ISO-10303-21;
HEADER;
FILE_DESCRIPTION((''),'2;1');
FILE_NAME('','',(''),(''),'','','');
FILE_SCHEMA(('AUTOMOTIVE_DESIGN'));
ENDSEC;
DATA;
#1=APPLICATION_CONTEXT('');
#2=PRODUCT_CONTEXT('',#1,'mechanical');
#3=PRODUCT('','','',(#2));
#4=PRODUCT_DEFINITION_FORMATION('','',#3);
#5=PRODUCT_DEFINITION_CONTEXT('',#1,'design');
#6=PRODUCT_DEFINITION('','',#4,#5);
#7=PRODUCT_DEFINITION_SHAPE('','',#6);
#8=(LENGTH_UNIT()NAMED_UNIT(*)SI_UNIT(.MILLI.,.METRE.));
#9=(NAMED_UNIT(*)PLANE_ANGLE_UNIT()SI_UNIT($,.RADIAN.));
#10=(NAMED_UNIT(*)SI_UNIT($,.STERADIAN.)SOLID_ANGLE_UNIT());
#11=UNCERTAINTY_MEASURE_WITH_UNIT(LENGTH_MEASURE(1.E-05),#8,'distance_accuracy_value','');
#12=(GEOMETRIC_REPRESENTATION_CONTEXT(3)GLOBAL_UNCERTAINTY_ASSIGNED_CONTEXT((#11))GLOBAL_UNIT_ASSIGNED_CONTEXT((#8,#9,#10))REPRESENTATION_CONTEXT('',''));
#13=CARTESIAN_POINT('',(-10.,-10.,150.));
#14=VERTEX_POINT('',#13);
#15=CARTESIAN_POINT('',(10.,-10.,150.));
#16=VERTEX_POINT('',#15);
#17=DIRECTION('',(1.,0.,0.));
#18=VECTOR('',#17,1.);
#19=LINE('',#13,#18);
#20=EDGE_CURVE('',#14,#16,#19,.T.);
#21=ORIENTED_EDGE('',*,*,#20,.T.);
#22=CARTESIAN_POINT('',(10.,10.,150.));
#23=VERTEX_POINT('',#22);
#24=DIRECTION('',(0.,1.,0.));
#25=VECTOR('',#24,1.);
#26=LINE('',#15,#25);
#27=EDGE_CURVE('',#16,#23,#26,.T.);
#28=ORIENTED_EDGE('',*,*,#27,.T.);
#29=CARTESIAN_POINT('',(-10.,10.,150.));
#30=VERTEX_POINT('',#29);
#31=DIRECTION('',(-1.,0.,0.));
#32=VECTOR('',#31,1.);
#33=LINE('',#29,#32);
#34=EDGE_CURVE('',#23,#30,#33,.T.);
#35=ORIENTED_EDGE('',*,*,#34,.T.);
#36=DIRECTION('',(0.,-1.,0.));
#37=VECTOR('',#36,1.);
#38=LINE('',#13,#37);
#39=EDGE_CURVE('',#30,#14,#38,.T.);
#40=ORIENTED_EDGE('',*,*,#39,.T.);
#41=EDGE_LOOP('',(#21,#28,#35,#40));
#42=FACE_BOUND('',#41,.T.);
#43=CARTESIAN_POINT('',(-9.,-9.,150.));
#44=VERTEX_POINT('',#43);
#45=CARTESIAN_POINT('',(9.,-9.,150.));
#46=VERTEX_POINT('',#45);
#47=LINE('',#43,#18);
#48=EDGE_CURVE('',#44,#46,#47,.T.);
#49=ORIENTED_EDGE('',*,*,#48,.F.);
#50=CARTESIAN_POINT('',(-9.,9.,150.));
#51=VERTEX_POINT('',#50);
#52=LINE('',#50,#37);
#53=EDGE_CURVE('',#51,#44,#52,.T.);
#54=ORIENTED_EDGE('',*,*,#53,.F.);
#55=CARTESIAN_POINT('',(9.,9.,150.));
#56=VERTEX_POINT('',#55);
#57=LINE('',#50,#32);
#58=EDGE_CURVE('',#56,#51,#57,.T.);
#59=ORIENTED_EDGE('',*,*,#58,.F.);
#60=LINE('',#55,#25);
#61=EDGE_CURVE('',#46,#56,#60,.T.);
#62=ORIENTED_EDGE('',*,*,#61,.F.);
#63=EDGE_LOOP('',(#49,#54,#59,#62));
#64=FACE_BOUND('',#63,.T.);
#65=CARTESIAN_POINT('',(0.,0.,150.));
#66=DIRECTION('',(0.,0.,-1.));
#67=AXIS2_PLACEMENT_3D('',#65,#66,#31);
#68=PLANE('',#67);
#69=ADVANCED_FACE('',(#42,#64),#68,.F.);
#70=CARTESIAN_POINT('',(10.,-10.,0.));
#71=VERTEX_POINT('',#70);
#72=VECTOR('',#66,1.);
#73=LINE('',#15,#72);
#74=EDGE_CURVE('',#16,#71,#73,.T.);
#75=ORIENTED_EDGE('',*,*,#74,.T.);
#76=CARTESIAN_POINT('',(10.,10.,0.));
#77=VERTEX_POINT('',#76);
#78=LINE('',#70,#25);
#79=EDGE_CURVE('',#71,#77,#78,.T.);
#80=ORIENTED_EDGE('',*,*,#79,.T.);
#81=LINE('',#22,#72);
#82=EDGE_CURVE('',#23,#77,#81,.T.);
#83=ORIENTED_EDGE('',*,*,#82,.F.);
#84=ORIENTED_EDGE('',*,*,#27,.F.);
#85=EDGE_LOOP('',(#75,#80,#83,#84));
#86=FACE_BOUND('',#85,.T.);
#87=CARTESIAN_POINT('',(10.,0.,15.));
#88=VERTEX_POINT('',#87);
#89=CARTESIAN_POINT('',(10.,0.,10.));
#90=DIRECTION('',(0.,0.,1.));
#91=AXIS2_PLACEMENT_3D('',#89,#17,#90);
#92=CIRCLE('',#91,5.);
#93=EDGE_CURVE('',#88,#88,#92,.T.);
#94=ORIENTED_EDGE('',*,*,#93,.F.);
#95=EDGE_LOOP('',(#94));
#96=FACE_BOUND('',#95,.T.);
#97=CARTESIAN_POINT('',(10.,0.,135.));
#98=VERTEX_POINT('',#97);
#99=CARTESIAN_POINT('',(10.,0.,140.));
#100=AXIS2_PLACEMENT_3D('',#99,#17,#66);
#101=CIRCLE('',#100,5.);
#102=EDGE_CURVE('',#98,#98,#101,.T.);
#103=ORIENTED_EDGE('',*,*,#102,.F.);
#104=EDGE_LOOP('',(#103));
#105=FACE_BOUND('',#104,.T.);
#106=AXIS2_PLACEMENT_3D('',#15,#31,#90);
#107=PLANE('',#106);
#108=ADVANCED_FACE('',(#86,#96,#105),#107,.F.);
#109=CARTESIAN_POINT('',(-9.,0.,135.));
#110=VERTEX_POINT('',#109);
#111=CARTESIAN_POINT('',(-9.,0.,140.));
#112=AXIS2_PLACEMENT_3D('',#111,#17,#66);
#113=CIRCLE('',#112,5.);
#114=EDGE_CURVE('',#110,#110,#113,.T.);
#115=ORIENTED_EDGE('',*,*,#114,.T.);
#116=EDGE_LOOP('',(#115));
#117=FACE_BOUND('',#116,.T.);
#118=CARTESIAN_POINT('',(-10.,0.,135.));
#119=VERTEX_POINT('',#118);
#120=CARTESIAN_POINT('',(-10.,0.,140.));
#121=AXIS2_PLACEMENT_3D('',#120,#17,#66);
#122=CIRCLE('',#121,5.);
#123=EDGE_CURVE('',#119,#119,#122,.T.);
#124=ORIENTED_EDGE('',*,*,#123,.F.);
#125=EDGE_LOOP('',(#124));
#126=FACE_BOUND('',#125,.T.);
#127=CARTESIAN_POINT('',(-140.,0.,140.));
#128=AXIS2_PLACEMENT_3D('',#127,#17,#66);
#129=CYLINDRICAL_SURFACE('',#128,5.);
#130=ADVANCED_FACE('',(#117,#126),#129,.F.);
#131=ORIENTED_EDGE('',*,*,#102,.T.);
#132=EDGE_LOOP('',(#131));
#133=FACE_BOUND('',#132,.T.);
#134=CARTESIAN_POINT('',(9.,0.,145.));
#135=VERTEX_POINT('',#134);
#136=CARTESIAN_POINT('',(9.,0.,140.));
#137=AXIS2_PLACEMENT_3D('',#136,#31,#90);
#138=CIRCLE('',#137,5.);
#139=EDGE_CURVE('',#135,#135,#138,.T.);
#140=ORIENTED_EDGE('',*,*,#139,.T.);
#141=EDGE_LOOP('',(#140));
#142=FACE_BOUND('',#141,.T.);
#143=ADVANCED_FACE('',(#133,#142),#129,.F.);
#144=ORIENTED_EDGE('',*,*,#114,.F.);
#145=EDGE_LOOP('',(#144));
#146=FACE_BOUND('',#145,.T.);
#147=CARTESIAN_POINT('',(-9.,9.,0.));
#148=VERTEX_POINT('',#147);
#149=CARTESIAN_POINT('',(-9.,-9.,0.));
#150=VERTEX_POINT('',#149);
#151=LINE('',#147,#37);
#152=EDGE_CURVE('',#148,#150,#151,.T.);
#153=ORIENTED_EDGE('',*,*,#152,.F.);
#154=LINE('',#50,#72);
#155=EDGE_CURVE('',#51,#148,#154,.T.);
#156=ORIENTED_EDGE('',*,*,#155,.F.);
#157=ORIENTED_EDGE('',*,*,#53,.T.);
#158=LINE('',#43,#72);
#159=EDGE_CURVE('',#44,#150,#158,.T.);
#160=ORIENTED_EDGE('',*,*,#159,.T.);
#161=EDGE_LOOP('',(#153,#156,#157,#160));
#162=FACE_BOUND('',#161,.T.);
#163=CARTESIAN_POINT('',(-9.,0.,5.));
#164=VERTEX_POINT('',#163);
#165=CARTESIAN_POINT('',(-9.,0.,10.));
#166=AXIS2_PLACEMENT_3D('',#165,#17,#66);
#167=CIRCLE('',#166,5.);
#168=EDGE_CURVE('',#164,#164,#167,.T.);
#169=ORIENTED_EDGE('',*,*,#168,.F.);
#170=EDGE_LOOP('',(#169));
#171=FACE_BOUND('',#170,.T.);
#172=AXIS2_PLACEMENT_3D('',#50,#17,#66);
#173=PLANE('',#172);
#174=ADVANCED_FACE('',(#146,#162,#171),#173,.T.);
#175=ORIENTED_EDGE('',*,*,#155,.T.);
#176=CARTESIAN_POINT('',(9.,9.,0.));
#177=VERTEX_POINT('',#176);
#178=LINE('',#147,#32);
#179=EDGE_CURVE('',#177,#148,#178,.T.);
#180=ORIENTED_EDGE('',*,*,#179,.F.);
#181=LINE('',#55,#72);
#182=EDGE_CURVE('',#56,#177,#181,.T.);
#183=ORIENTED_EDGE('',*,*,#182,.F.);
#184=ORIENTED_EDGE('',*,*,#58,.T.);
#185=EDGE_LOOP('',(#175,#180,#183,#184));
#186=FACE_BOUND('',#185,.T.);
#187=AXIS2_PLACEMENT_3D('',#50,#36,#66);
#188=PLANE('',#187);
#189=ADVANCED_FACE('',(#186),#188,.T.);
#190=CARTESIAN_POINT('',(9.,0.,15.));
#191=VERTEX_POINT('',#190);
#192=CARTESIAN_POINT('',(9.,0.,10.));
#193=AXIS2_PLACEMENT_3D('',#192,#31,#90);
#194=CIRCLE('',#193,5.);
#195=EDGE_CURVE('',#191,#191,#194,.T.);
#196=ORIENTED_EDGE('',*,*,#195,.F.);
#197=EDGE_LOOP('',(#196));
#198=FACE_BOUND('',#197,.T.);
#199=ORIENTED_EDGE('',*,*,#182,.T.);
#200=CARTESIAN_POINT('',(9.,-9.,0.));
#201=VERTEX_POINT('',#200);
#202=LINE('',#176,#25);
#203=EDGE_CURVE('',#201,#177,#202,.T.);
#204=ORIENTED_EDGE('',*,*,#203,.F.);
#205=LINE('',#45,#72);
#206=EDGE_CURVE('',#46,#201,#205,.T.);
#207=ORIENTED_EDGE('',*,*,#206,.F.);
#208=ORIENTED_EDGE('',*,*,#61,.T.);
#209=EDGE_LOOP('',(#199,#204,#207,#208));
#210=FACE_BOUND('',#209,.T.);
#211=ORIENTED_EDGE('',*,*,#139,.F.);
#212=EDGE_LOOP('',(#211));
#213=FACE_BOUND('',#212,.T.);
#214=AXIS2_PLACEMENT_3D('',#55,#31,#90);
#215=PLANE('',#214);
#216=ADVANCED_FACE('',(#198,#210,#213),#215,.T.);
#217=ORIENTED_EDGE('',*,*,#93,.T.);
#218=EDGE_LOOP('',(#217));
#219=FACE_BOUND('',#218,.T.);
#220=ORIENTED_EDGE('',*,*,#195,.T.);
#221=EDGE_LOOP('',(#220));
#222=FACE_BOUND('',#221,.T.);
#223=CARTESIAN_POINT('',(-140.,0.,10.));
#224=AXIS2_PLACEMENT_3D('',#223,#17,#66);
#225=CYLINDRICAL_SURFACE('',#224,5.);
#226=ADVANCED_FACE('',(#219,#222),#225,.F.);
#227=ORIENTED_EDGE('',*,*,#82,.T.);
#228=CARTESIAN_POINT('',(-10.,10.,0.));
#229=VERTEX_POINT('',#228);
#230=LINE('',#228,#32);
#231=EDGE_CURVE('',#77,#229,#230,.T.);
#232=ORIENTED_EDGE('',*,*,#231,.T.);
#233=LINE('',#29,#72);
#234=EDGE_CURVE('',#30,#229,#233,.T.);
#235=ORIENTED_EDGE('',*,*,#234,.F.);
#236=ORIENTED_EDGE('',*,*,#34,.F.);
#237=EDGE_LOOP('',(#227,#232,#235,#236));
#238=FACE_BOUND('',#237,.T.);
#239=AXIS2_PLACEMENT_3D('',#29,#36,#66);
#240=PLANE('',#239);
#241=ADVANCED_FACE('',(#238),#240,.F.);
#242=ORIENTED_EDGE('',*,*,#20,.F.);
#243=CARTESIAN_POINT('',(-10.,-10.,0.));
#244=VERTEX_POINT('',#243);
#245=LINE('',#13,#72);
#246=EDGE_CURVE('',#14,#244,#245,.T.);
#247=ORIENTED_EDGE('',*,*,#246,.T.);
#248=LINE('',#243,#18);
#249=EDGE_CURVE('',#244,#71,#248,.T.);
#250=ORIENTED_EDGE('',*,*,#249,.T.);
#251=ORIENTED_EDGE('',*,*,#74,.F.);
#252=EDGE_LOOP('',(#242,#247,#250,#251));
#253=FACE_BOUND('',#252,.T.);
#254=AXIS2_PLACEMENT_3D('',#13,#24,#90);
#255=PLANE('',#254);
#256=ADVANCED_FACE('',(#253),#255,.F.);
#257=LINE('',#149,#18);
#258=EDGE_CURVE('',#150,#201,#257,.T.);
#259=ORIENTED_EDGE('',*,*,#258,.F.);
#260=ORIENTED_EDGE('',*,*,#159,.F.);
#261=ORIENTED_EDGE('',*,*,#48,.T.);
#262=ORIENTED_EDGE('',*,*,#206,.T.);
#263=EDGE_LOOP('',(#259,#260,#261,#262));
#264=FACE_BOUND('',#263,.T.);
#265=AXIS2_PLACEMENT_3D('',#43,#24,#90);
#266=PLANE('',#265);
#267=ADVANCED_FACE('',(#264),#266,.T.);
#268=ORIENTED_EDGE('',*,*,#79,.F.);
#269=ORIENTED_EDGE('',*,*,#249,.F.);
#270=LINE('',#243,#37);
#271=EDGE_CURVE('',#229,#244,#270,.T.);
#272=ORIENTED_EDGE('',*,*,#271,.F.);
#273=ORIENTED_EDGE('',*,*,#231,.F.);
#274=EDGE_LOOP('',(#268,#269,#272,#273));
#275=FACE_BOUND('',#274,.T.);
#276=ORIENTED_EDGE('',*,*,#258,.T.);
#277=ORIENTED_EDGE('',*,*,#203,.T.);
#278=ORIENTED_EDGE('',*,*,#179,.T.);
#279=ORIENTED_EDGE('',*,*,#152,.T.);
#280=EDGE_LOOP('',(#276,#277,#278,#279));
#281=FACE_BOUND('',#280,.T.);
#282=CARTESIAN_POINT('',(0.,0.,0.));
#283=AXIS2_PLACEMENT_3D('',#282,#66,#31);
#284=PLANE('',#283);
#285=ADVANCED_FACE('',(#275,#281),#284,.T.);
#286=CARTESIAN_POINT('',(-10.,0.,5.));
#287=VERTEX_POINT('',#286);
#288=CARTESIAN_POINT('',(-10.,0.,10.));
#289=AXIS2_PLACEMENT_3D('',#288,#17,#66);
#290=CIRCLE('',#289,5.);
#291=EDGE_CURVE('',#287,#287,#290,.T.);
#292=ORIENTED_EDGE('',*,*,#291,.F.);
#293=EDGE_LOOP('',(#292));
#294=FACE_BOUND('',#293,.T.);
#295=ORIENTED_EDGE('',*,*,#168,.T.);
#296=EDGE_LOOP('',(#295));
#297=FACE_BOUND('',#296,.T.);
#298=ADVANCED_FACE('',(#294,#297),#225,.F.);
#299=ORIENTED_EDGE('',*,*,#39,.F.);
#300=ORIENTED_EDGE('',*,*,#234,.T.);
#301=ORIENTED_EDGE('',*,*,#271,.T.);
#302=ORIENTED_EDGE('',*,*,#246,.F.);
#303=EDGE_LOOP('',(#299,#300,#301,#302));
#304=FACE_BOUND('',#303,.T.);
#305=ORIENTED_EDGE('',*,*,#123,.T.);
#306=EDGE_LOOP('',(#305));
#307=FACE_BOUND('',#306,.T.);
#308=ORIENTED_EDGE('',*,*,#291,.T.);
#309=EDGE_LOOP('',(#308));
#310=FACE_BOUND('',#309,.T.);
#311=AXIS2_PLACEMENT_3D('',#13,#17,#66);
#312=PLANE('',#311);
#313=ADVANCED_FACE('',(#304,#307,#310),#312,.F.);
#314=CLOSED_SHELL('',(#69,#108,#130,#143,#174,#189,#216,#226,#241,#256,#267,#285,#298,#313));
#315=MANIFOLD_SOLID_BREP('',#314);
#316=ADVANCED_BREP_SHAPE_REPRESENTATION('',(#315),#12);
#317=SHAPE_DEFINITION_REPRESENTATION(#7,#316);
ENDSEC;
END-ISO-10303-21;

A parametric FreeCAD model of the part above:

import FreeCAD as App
import Part
import Sketcher

doc = App.newDocument("Part")
body = doc.addObject("PartDesign::Body", "Body")

sketch1 = body.newObject("Sketcher::SketchObject", "Sketch")
sketch1.AttachmentSupport = (doc.getObject("XY_Plane"), [""])
sketch1.MapMode = "FlatFace"
sketch1.addGeometry([
    Part.LineSegment(App.Vector(-10, 10, 0), App.Vector(-10, -10, 0)),
    Part.LineSegment(App.Vector(-10, -10, 0), App.Vector(10, -10, 0)),
    Part.LineSegment(App.Vector(10, -10, 0), App.Vector(10, 10, 0)),
    Part.LineSegment(App.Vector(10, 10, 0), App.Vector(-10, 10, 0)),
    Part.LineSegment(App.Vector(9, -9, 0), App.Vector(-9, -9, 0)),
    Part.LineSegment(App.Vector(-9, -9, 0), App.Vector(-9, 9, 0)),
    Part.LineSegment(App.Vector(-9, 9, 0), App.Vector(9, 9, 0)),
    Part.LineSegment(App.Vector(9, 9, 0), App.Vector(9, -9, 0)),
], False)
sketch1.addConstraint([
    Sketcher.Constraint("Coincident", 0, 2, 1, 1),
    Sketcher.Constraint("Coincident", 1, 2, 2, 1),
    Sketcher.Constraint("Coincident", 2, 2, 3, 1),
    Sketcher.Constraint("Coincident", 3, 2, 0, 1),
    Sketcher.Constraint("Coincident", 4, 2, 5, 1),
    Sketcher.Constraint("Coincident", 5, 2, 6, 1),
    Sketcher.Constraint("Coincident", 6, 2, 7, 1),
    Sketcher.Constraint("Coincident", 7, 2, 4, 1),
    Sketcher.Constraint("Vertical", 0),
    Sketcher.Constraint("Horizontal", 1),
    Sketcher.Constraint("Vertical", 2),
    Sketcher.Constraint("Horizontal", 3),
    Sketcher.Constraint("Horizontal", 4),
    Sketcher.Constraint("Vertical", 5),
    Sketcher.Constraint("Horizontal", 6),
    Sketcher.Constraint("Vertical", 7),
    Sketcher.Constraint("Symmetric", 0, 2, 2, 2, -1, 1),
    Sketcher.Constraint("Symmetric", 4, 2, 6, 2, -1, 1),
    Sketcher.Constraint("Equal", 3, 0),
    Sketcher.Constraint("Equal", 6, 5),
    Sketcher.Constraint("DistanceX", 1, 1, 1, 2, 20.0),
    Sketcher.Constraint("DistanceX", 4, 2, 4, 1, 18.0),
])
pad1 = body.newObject("PartDesign::Pad", "Pad")
pad1.Profile = sketch1
pad1.Length = 150

sketch2 = body.newObject("Sketcher::SketchObject", "Sketch001")
sketch2.AttachmentSupport = (doc.getObject("YZ_Plane"), [""])
sketch2.MapMode = "FlatFace"
sketch2.AttachmentOffset = App.Placement(App.Vector(0, 0, 10), App.Rotation())
sketch2.addGeometry([
    Part.Circle(App.Vector(0, 140, 0), App.Vector(0, 0, 1), 5),
    Part.Circle(App.Vector(0, 10, 0), App.Vector(0, 0, 1), 5),
], False)
sketch2.addConstraint([
    Sketcher.Constraint("Equal", 0, 1),
    Sketcher.Constraint("PointOnObject", 0, 3, -2),
    Sketcher.Constraint("PointOnObject", 1, 3, -2),
    Sketcher.Constraint("Diameter", 0, 10.0),
    Sketcher.Constraint("DistanceY", -1, 1, 0, 3, 140.0),
    Sketcher.Constraint("DistanceY", -1, 1, 1, 3, 10.0),
])
pocket1 = body.newObject("PartDesign::Pocket", "Pocket")
pocket1.Profile = sketch2
pocket1.Length = 150

doc.recompute()
